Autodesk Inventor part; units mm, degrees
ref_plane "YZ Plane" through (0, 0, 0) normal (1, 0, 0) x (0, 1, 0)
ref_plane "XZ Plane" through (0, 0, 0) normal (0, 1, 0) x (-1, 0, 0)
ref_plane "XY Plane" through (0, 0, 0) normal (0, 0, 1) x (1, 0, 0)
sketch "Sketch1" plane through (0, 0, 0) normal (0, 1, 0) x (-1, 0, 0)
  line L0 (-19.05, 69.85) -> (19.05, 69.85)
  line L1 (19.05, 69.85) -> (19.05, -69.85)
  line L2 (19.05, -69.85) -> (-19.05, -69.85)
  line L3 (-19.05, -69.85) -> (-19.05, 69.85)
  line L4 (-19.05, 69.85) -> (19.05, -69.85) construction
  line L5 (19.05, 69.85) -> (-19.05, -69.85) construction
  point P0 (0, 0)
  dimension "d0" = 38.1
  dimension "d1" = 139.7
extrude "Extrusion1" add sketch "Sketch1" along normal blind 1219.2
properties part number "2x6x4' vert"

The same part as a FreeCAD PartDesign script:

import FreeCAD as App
import Part
import Sketcher
Q = App.Units.Quantity

doc = App.newDocument("Part")
params = doc.addObject("Spreadsheet::Sheet", "Params")
for row, (alias, value) in enumerate([
    ("sketch1_width", "1.5 in"),
    ("sketch1_height", "5.5 in"),
    ("pad1_length", "48 in"),
], start=1):
    params.set(f"A{row}", alias)
    params.set(f"B{row}", "=" + value)
    params.setAlias(f"B{row}", alias)

body = doc.addObject("PartDesign::Body", "Body")

sketch1 = body.newObject("Sketcher::SketchObject", "Sketch")
sketch1.AttachmentSupport = (doc.getObject("XZ_Plane"), [""])
sketch1.MapMode = "FlatFace"
sketch1.addGeometry([
    Part.LineSegment(App.Vector(-19, 70, 0), App.Vector(19, 70, 0)),
    Part.LineSegment(App.Vector(19, 70, 0), App.Vector(19, -70, 0)),
    Part.LineSegment(App.Vector(19, -70, 0), App.Vector(-19, -70, 0)),
    Part.LineSegment(App.Vector(-19, -70, 0), App.Vector(-19, 70, 0)),
], False)
sketch1.addConstraint([
    Sketcher.Constraint("Coincident", 0, 2, 1, 1),
    Sketcher.Constraint("Coincident", 1, 2, 2, 1),
    Sketcher.Constraint("Coincident", 2, 2, 3, 1),
    Sketcher.Constraint("Coincident", 3, 2, 0, 1),
    Sketcher.Constraint("Horizontal", 0),
    Sketcher.Constraint("Vertical", 1),
    Sketcher.Constraint("Horizontal", 2),
    Sketcher.Constraint("Vertical", 3),
    Sketcher.Constraint("Symmetric", 0, 2, 2, 2, -1, 1),
    Sketcher.Constraint("DistanceX", 0, 1, 0, 2, Q("1.5 in")),
    Sketcher.Constraint("DistanceY", 1, 2, 1, 1, Q("5.5 in")),
])
sketch1.setExpression("Constraints[9]", "Params.sketch1_width")
sketch1.setExpression("Constraints[10]", "Params.sketch1_height")
pad1 = body.newObject("PartDesign::Pad", "Pad")
pad1.Profile = sketch1
pad1.setExpression("Length", "Params.pad1_length")
pad1.Reversed = True

doc.recompute()
